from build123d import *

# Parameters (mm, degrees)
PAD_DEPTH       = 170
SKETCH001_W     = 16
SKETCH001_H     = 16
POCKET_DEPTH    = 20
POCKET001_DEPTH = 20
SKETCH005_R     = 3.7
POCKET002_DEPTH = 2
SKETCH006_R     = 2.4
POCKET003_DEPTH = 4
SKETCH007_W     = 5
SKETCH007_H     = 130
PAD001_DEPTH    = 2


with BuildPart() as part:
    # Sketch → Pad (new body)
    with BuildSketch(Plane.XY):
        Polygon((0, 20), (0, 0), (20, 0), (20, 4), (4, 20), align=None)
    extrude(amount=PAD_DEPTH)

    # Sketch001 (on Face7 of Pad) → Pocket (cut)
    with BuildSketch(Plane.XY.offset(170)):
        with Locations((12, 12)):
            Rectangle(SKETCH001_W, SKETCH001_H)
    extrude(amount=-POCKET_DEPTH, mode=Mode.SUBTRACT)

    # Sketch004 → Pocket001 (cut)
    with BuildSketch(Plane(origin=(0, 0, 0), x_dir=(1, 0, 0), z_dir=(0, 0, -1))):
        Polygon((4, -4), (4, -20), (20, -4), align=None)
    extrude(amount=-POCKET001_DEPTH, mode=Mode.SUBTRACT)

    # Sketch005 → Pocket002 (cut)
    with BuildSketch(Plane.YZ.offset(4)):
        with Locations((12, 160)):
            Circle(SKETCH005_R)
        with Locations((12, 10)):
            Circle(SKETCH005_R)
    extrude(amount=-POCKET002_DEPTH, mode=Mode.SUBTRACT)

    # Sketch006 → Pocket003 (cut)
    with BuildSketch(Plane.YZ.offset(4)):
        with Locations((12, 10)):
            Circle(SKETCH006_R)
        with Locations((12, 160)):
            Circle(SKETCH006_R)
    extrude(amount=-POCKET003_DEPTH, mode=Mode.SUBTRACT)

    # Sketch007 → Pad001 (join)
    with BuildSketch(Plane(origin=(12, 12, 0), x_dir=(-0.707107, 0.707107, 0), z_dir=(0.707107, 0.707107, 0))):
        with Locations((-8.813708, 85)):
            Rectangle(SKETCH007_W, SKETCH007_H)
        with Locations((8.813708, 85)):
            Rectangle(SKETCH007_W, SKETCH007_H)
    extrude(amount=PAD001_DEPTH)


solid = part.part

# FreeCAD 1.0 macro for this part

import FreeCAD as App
import Part
import Sketcher

V = App.Vector
Q = App.Units.Quantity

doc = App.newDocument("Part")
body = doc.addObject("PartDesign::Body", "Body")

# Sketch on XY plane
sketch1 = doc.addObject("Sketcher::SketchObject", "Sketch")
body.addObject(sketch1)
sketch1.AttachmentSupport = (doc.XY_Plane, [""])
sketch1.MapMode = "FlatFace"
sketch1.addGeometry([
    Part.LineSegment(V(0, 20, 0), V(0, 0, 0)),  # 0
    Part.LineSegment(V(0, 0, 0), V(20, 0, 0)),  # 1
    Part.LineSegment(V(20, 0, 0), V(20, 4, 0)),  # 2
    Part.LineSegment(V(20, 4, 0), V(4, 20, 0)),  # 3
    Part.LineSegment(V(4, 20, 0), V(0, 20, 0)),  # 4
], False)
sketch1.addConstraint([
    Sketcher.Constraint("Coincident", 0, 2, 1, 1),
    Sketcher.Constraint("Coincident", 1, 2, 2, 1),
    Sketcher.Constraint("Coincident", 2, 2, 3, 1),
    Sketcher.Constraint("Coincident", 3, 2, 4, 1),
    Sketcher.Constraint("Coincident", 4, 2, 0, 1),
    Sketcher.Constraint("Vertical", 0),
    Sketcher.Constraint("Horizontal", 1),
    Sketcher.Constraint("Vertical", 2),
    Sketcher.Constraint("Horizontal", 4),
    Sketcher.Constraint("Coincident", 0, 2, -1, 1),
    Sketcher.Constraint("Equal", 1, 0),
    Sketcher.Constraint("Equal", 4, 2),
    Sketcher.Constraint("DistanceX", 1, 1, 1, 2, Q("20 mm")),
    Sketcher.Constraint("DistanceX", 4, 2, 4, 1, Q("4 mm")),
])
pad1 = doc.addObject("PartDesign::Pad", "Pad")
body.addObject(pad1)
pad1.Profile = sketch1
pad1.Length = 170

# Sketch on XY plane
sketch2 = doc.addObject("Sketcher::SketchObject", "Sketch001")
body.addObject(sketch2)
sketch2.AttachmentSupport = (doc.XY_Plane, [""])
sketch2.MapMode = "FlatFace"
sketch2.AttachmentOffset = App.Placement(V(0, 0, 170), App.Rotation())
sketch2.addGeometry([
    Part.LineSegment(V(4, 20, 0), V(4, 4, 0)),
    Part.LineSegment(V(4, 4, 0), V(20, 4, 0)),
    Part.LineSegment(V(20, 4, 0), V(20, 20, 0)),
    Part.LineSegment(V(20, 20, 0), V(4, 20, 0)),
], False)
sketch2.addConstraint([
    Sketcher.Constraint("Coincident", 0, 2, 1, 1),
    Sketcher.Constraint("Coincident", 1, 2, 2, 1),
    Sketcher.Constraint("Coincident", 2, 2, 3, 1),
    Sketcher.Constraint("Coincident", 3, 2, 0, 1),
    Sketcher.Constraint("Vertical", 0),
    Sketcher.Constraint("Horizontal", 1),
    Sketcher.Constraint("Vertical", 2),
    Sketcher.Constraint("Horizontal", 3),
    Sketcher.Constraint("Equal", 3, 0),
    Sketcher.Constraint("DistanceX", 1, 1, 1, 2, Q("16 mm")),
    Sketcher.Constraint("DistanceX", -1, 1, 0, 2, Q("4 mm")),
    Sketcher.Constraint("DistanceY", -1, 1, 0, 2, Q("4 mm")),
])
pocket1 = doc.addObject("PartDesign::Pocket", "Pocket")
body.addObject(pocket1)
pocket1.Profile = sketch2
pocket1.Length = 20

# Sketch on XY plane
sketch3 = doc.addObject("Sketcher::SketchObject", "Sketch002")
body.addObject(sketch3)
sketch3.AttachmentSupport = (doc.XY_Plane, [""])
sketch3.MapMode = "FlatFace"
sketch3.addGeometry([
    Part.LineSegment(V(4, 4, 0), V(4, 20, 0)),
    Part.LineSegment(V(4, 20, 0), V(20, 4, 0)),
    Part.LineSegment(V(20, 4, 0), V(4, 4, 0)),
], False)
sketch3.addConstraint([
    Sketcher.Constraint("Coincident", 0, 2, 1, 1),
    Sketcher.Constraint("Coincident", 1, 2, 2, 1),
    Sketcher.Constraint("Coincident", 2, 2, 0, 1),
    Sketcher.Constraint("Vertical", 0),
    Sketcher.Constraint("Horizontal", 2),
    Sketcher.Constraint("Equal", 2, 0),
    Sketcher.Constraint("DistanceX", 2, 2, 2, 1, Q("16 mm")),
    Sketcher.Constraint("DistanceX", -1, 1, 0, 2, Q("4 mm")),
    Sketcher.Constraint("DistanceY", -1, 1, 0, 2, Q("20 mm")),
])
pocket2 = doc.addObject("PartDesign::Pocket", "Pocket001")
body.addObject(pocket2)
pocket2.Profile = sketch3
pocket2.Length = 20
pocket2.Reversed = True

# Sketch on YZ plane
sketch4 = doc.addObject("Sketcher::SketchObject", "Sketch003")
body.addObject(sketch4)
sketch4.AttachmentSupport = (doc.YZ_Plane, [""])
sketch4.MapMode = "FlatFace"
sketch4.AttachmentOffset = App.Placement(V(0, 0, 4), App.Rotation())
sketch4.addGeometry([
    Part.Circle(V(12, 160, 0), V(0, 0, 1), 3.7),
    Part.Circle(V(12, 10, 0), V(0, 0, 1), 3.7),
], False)
sketch4.addConstraint([
    Sketcher.Constraint("Equal", 0, 1),
    Sketcher.Constraint("Vertical", 0, 3, 1, 3),
    Sketcher.Constraint("Diameter", 0, Q("7.4 mm")),
    Sketcher.Constraint("DistanceX", -1, 1, 0, 3, Q("12 mm")),
    Sketcher.Constraint("DistanceY", -1, 1, 0, 3, Q("160 mm")),
    Sketcher.Constraint("DistanceY", -1, 1, 1, 3, Q("10 mm")),
])
pocket3 = doc.addObject("PartDesign::Pocket", "Pocket002")
body.addObject(pocket3)
pocket3.Profile = sketch4
pocket3.Length = 2

# Sketch on YZ plane
sketch5 = doc.addObject("Sketcher::SketchObject", "Sketch004")
body.addObject(sketch5)
sketch5.AttachmentSupport = (doc.YZ_Plane, [""])
sketch5.MapMode = "FlatFace"
sketch5.AttachmentOffset = App.Placement(V(0, 0, 4), App.Rotation())
sketch5.addGeometry([
    Part.Circle(V(12, 10, 0), V(0, 0, 1), 2.4),
    Part.Circle(V(12, 160, 0), V(0, 0, 1), 2.4),
], False)
sketch5.addConstraint([
    Sketcher.Constraint("Equal", 0, 1),
    Sketcher.Constraint("Vertical", 0, 3, 1, 3),
    Sketcher.Constraint("Diameter", 0, Q("4.8 mm")),
    Sketcher.Constraint("DistanceX", -1, 1, 0, 3, Q("12 mm")),
    Sketcher.Constraint("DistanceY", -1, 1, 0, 3, Q("10 mm")),
    Sketcher.Constraint("DistanceY", -1, 1, 1, 3, Q("160 mm")),
])
pocket4 = doc.addObject("PartDesign::Pocket", "Pocket003")
body.addObject(pocket4)
pocket4.Profile = sketch5
pocket4.Length = 4

# Sketch on an angled plane
sketch6 = doc.addObject("Sketcher::SketchObject", "Sketch005")
body.addObject(sketch6)
sketch6.Placement = App.Placement(V(12, 12, 0), App.Rotation(V(-0.707106781, 0.707106781, 0), V(0, 0, 0.999999999), V(0.707106781, 0.707106781, 0), "ZXY"))
sketch6.addGeometry([
    Part.LineSegment(V(-11.3, 150, 0), V(-11.3, 20, 0)),  # 0
    Part.LineSegment(V(-11.3, 20, 0), V(-6.3, 20, 0)),  # 1
    Part.LineSegment(V(-6.3, 20, 0), V(-6.3, 150, 0)),  # 2
    Part.LineSegment(V(-6.3, 150, 0), V(-11.3, 150, 0)),  # 3
    Part.LineSegment(V(6.3, 150, 0), V(6.3, 20, 0)),  # 4
    Part.LineSegment(V(6.3, 20, 0), V(11.3, 20, 0)),  # 5
    Part.LineSegment(V(11.3, 20, 0), V(11.3, 150, 0)),  # 6
    Part.LineSegment(V(11.3, 150, 0), V(6.3, 150, 0)),  # 7
], False)
sketch6.addConstraint([
    Sketcher.Constraint("Coincident", 0, 2, 1, 1),
    Sketcher.Constraint("Coincident", 1, 2, 2, 1),
    Sketcher.Constraint("Coincident", 2, 2, 3, 1),
    Sketcher.Constraint("Coincident", 3, 2, 0, 1),
    Sketcher.Constraint("Coincident", 4, 2, 5, 1),
    Sketcher.Constraint("Coincident", 5, 2, 6, 1),
    Sketcher.Constraint("Coincident", 6, 2, 7, 1),
    Sketcher.Constraint("Coincident", 7, 2, 4, 1),
    Sketcher.Constraint("Vertical", 0),
    Sketcher.Constraint("Horizontal", 1),
    Sketcher.Constraint("Vertical", 2),
    Sketcher.Constraint("Horizontal", 3),
    Sketcher.Constraint("Vertical", 4),
    Sketcher.Constraint("Horizontal", 5),
    Sketcher.Constraint("Vertical", 6),
    Sketcher.Constraint("Horizontal", 7),
    Sketcher.Constraint("Symmetric", 1, 2, 4, 2, -2),
    Sketcher.Constraint("Symmetric", 3, 2, 6, 2, -2),
    Sketcher.Constraint("DistanceX", 1, 1, 1, 2, Q("5 mm")),
    Sketcher.Constraint("DistanceY", 0, 2, 0, 1, Q("130 mm")),
    Sketcher.Constraint("DistanceY", -1, 1, 0, 2, Q("20 mm")),
    Sketcher.Constraint("DistanceX", 0, 2, -1, 1, Q("11.313708 mm")),
])
pad2 = doc.addObject("PartDesign::Pad", "Pad001")
body.addObject(pad2)
pad2.Profile = sketch6
pad2.Length = 2

doc.recompute()
